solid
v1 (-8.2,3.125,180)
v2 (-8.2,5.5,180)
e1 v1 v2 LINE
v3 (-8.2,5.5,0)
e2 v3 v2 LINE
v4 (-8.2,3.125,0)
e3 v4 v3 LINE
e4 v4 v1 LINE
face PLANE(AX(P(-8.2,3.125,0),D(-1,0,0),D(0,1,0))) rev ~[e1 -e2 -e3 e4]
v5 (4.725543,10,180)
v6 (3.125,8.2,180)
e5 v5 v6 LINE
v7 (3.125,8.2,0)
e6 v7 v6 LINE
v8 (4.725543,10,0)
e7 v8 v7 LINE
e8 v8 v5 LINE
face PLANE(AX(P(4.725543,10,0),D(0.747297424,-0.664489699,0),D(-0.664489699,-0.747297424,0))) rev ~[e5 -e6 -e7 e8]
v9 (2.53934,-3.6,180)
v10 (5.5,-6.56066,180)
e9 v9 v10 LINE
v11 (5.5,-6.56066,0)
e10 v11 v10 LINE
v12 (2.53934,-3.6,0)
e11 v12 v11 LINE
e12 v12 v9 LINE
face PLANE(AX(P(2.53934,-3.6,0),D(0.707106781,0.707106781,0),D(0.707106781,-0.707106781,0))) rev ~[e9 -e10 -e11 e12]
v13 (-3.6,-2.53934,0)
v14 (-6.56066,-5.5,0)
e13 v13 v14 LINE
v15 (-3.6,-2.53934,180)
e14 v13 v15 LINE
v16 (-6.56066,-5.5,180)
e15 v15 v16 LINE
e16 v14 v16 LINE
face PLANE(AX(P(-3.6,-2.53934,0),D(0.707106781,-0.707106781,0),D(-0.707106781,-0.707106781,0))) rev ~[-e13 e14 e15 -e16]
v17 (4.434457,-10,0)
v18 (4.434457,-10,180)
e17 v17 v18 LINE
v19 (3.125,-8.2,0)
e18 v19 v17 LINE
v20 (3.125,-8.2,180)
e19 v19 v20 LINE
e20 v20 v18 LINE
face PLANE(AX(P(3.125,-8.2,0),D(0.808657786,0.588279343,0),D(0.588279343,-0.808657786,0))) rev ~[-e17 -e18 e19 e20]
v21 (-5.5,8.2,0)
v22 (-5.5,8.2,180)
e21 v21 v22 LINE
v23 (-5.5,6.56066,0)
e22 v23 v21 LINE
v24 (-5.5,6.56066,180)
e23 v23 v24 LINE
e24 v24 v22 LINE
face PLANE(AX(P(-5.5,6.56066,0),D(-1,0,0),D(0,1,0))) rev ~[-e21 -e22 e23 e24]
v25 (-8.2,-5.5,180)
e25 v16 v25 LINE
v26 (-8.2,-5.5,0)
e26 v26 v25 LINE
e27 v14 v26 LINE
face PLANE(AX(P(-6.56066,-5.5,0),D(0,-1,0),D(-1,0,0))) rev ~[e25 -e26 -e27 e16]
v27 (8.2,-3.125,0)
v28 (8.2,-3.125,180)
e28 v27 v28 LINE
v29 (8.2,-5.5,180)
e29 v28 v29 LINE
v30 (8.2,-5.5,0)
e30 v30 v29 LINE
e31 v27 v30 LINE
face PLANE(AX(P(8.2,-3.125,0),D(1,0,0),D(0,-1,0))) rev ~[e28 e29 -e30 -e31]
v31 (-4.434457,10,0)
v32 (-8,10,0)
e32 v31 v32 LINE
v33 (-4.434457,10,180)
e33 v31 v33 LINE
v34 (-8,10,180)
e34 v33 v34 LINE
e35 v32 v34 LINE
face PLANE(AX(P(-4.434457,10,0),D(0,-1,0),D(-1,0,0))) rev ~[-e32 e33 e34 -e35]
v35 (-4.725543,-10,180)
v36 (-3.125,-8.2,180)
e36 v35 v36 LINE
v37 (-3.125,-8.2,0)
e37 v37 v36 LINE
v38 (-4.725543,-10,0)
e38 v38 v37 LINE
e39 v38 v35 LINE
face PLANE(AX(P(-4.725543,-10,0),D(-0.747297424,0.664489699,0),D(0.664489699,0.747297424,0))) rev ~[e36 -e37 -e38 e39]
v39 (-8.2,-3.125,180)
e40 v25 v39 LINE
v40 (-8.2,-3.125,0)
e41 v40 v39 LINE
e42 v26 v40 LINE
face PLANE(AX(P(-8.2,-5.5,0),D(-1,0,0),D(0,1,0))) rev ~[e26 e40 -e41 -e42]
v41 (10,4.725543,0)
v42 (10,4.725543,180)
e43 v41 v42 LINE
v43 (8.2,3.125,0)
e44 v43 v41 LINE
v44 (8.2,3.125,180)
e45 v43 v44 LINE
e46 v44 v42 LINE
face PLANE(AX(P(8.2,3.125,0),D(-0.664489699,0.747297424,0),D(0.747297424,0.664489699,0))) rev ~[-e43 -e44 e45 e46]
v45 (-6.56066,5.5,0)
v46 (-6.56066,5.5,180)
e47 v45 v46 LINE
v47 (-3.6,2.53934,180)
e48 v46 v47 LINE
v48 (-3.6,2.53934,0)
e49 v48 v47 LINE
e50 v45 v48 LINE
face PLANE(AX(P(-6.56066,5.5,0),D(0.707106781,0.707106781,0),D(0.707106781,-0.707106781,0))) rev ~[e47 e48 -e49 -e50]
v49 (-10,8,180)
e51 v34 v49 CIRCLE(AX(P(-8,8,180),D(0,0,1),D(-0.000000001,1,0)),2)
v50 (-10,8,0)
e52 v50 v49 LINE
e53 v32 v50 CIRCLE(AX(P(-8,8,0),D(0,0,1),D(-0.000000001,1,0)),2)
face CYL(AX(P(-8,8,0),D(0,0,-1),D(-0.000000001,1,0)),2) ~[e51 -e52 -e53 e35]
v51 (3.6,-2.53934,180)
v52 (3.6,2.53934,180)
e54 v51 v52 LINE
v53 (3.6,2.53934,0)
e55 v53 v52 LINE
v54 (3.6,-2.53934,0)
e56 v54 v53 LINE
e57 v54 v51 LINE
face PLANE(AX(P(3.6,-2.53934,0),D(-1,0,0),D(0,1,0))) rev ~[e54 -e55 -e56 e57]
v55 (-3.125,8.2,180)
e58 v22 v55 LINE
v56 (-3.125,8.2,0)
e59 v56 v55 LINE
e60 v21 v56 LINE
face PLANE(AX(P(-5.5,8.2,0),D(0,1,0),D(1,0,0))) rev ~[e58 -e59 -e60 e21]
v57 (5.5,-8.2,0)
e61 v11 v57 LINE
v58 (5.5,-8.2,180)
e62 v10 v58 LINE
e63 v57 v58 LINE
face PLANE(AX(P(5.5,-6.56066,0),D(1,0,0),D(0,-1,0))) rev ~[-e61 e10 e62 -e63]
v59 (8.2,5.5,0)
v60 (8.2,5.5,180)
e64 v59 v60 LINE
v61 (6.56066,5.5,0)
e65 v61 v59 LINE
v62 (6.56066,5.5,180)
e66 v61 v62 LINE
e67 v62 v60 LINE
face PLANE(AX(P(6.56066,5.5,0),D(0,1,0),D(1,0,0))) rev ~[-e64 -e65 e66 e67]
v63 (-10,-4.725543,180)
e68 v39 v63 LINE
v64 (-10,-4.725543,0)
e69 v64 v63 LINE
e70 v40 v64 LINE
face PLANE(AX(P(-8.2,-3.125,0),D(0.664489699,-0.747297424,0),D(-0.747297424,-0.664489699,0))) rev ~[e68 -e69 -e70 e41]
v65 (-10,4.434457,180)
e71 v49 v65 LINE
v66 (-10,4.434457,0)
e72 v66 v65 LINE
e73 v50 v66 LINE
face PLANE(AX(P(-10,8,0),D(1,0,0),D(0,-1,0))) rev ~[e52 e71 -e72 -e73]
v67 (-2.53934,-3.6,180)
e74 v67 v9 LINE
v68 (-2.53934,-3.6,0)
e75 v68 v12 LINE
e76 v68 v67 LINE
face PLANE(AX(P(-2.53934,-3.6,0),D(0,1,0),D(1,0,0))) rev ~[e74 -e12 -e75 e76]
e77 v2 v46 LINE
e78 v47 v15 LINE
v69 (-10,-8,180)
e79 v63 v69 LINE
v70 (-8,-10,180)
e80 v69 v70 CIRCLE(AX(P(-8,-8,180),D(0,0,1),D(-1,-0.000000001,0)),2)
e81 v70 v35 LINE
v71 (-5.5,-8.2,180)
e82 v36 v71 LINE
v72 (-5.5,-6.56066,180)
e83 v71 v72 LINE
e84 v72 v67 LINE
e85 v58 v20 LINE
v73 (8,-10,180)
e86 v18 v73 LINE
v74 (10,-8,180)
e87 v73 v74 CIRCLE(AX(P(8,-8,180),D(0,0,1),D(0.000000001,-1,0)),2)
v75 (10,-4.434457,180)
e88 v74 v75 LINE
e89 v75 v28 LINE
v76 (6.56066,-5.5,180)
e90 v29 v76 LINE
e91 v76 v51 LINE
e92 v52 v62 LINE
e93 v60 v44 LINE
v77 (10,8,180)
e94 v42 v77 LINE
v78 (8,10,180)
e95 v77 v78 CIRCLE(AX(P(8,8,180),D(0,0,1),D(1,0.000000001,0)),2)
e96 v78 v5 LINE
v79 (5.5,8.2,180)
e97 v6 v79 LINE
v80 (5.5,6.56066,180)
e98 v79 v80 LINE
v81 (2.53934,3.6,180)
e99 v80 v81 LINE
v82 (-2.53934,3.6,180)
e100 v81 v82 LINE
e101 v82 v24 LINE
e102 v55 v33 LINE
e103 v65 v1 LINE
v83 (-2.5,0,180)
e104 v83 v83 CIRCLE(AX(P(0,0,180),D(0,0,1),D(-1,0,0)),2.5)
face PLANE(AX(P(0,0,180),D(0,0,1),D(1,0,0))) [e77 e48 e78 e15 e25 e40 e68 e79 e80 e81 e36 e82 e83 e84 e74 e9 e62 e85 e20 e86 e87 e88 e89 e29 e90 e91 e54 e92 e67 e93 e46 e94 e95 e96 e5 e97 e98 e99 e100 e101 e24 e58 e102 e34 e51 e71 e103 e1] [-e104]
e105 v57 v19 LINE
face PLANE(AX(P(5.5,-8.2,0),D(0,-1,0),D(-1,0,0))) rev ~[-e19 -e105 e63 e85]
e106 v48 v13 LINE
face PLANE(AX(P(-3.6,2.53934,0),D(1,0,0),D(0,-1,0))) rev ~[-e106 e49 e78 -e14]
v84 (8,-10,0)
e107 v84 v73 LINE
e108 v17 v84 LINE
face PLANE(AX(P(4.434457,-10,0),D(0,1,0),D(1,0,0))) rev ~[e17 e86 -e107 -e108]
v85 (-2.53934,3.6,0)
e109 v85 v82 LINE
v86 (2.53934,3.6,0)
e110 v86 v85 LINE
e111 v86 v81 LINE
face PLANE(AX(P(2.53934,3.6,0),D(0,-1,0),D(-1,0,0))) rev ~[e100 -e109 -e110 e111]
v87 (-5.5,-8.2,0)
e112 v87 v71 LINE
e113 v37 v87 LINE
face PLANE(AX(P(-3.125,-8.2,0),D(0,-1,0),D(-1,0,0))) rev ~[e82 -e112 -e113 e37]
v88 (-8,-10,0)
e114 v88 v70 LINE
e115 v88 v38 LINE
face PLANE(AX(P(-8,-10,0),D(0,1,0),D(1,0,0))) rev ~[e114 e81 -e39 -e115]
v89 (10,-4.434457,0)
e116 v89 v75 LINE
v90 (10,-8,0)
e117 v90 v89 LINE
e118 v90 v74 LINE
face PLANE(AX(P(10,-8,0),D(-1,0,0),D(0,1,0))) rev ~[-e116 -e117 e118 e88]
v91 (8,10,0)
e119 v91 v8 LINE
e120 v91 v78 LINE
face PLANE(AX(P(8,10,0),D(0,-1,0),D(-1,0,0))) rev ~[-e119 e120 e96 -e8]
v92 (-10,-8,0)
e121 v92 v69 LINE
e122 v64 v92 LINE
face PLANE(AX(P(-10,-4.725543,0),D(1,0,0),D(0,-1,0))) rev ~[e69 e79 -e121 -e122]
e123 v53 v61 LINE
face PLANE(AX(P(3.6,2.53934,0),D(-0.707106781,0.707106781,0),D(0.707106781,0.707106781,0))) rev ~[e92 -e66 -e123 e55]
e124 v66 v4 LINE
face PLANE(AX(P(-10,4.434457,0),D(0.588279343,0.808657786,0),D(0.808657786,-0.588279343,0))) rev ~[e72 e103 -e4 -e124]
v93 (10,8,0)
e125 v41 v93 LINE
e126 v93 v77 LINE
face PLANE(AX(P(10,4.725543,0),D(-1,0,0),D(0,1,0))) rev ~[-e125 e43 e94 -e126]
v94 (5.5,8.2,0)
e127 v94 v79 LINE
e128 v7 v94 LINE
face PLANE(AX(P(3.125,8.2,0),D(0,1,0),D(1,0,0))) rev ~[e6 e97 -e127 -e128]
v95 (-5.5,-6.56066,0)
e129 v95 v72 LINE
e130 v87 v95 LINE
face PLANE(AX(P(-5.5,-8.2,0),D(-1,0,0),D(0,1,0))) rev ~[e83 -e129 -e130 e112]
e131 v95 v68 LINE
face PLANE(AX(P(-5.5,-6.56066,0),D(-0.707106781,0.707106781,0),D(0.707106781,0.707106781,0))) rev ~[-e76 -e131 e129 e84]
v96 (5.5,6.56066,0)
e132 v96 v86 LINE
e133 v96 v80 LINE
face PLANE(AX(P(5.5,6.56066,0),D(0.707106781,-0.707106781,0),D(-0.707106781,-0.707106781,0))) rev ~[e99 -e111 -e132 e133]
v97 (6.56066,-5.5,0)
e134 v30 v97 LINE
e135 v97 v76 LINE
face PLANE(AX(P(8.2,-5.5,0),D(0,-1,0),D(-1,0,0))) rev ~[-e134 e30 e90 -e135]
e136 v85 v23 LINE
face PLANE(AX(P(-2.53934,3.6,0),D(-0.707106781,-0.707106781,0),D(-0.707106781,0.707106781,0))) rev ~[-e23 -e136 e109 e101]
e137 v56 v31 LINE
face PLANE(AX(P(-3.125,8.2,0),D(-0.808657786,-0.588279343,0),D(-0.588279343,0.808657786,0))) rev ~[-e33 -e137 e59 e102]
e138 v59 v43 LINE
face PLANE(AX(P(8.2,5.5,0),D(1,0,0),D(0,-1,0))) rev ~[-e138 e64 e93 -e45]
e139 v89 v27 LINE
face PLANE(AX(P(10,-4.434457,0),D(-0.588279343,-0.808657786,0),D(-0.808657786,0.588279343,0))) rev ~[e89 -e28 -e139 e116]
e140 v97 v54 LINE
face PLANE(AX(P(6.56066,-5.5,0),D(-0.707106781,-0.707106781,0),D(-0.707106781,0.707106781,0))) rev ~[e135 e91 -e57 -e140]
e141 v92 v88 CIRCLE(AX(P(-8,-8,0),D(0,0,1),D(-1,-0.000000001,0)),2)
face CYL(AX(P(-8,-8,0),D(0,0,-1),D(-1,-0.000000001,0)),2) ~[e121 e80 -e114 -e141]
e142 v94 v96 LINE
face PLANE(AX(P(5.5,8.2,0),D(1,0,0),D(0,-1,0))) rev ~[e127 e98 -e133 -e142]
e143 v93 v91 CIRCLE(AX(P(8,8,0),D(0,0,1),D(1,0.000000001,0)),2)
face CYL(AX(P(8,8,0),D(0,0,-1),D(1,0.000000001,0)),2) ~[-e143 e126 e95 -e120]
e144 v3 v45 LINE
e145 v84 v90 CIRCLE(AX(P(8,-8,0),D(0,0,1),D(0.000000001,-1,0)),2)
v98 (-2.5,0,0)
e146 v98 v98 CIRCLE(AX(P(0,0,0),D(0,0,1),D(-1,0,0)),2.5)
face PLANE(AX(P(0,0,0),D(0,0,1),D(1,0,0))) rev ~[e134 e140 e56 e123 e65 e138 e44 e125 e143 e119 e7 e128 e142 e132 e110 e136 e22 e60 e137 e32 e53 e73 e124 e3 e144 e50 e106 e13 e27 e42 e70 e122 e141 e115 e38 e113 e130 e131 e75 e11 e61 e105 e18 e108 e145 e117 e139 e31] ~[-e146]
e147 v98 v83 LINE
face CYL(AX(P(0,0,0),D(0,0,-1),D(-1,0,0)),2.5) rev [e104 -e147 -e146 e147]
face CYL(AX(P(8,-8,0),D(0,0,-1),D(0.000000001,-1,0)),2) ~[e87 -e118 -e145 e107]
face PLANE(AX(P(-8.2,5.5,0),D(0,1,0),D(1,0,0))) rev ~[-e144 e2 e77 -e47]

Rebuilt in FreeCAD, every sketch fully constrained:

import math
import FreeCAD as App
import Part
import Sketcher

V = App.Vector

doc = App.newDocument("Part")
body = doc.addObject("PartDesign::Body", "Body")

sketch1 = body.newObject("Sketcher::SketchObject", "Sketch")
sketch1.AttachmentSupport = (doc.getObject("XY_Plane"), [""])
sketch1.MapMode = "FlatFace"
sketch1.addGeometry([
    Part.LineSegment(V(-4.7, -10, 0), V(-3.1, -8.2, 0)),
    Part.LineSegment(V(-3.1, -8.2, 0), V(-5.5, -8.2, 0)),
    Part.LineSegment(V(-5.5, -8.2, 0), V(-5.5, -6.6, 0)),
    Part.LineSegment(V(-5.5, -6.6, 0), V(-2.5, -3.6, 0)),
    Part.LineSegment(V(-2.5, -3.6, 0), V(2.5, -3.6, 0)),
    Part.LineSegment(V(2.5, -3.6, 0), V(5.5, -6.6, 0)),
    Part.LineSegment(V(5.5, -6.6, 0), V(5.5, -8.2, 0)),
    Part.LineSegment(V(5.5, -8.2, 0), V(3.1, -8.2, 0)),
    Part.LineSegment(V(3.1, -8.2, 0), V(4.4, -10, 0)),
    Part.LineSegment(V(4.4, -10, 0), V(8, -10, 0)),
    Part.ArcOfCircle(Part.Circle(V(8, -8, 0), V(0, 0, 1), 2), math.radians(-90), math.radians(0)),
    Part.LineSegment(V(10, -8, 0), V(10, -4.4, 0)),
    Part.LineSegment(V(10, -4.4, 0), V(8.2, -3.1, 0)),
    Part.LineSegment(V(8.2, -3.1, 0), V(8.2, -5.5, 0)),
    Part.LineSegment(V(8.2, -5.5, 0), V(6.6, -5.5, 0)),
    Part.LineSegment(V(6.6, -5.5, 0), V(3.6, -2.5, 0)),
    Part.LineSegment(V(3.6, -2.5, 0), V(3.6, 2.5, 0)),
    Part.LineSegment(V(3.6, 2.5, 0), V(6.6, 5.5, 0)),
    Part.LineSegment(V(6.6, 5.5, 0), V(8.2, 5.5, 0)),
    Part.LineSegment(V(8.2, 5.5, 0), V(8.2, 3.1, 0)),
    Part.LineSegment(V(8.2, 3.1, 0), V(10, 4.7, 0)),
    Part.LineSegment(V(10, 4.7, 0), V(10, 8, 0)),
    Part.ArcOfCircle(Part.Circle(V(8, 8, 0), V(0, 0, 1), 2), math.radians(0), math.radians(90)),
    Part.LineSegment(V(8, 10, 0), V(4.7, 10, 0)),
    Part.LineSegment(V(4.7, 10, 0), V(3.1, 8.2, 0)),
    Part.LineSegment(V(3.1, 8.2, 0), V(5.5, 8.2, 0)),
    Part.LineSegment(V(5.5, 8.2, 0), V(5.5, 6.6, 0)),
    Part.LineSegment(V(5.5, 6.6, 0), V(2.5, 3.6, 0)),
    Part.LineSegment(V(2.5, 3.6, 0), V(-2.5, 3.6, 0)),
    Part.LineSegment(V(-2.5, 3.6, 0), V(-5.5, 6.6, 0)),
    Part.LineSegment(V(-5.5, 6.6, 0), V(-5.5, 8.2, 0)),
    Part.LineSegment(V(-5.5, 8.2, 0), V(-3.1, 8.2, 0)),
    Part.LineSegment(V(-3.1, 8.2, 0), V(-4.4, 10, 0)),
    Part.LineSegment(V(-4.4, 10, 0), V(-8, 10, 0)),
    Part.ArcOfCircle(Part.Circle(V(-8, 8, 0), V(0, 0, 1), 2), math.radians(90), math.radians(180)),
    Part.LineSegment(V(-10, 8, 0), V(-10, 4.4, 0)),
    Part.LineSegment(V(-10, 4.4, 0), V(-8.2, 3.1, 0)),
    Part.LineSegment(V(-8.2, 3.1, 0), V(-8.2, 5.5, 0)),
    Part.LineSegment(V(-8.2, 5.5, 0), V(-6.6, 5.5, 0)),
    Part.LineSegment(V(-6.6, 5.5, 0), V(-3.6, 2.5, 0)),
    Part.LineSegment(V(-3.6, 2.5, 0), V(-3.6, -2.5, 0)),
    Part.LineSegment(V(-3.6, -2.5, 0), V(-6.6, -5.5, 0)),
    Part.LineSegment(V(-6.6, -5.5, 0), V(-8.2, -5.5, 0)),
    Part.LineSegment(V(-8.2, -5.5, 0), V(-8.2, -3.1, 0)),
    Part.LineSegment(V(-8.2, -3.1, 0), V(-10, -4.7, 0)),
    Part.LineSegment(V(-10, -4.7, 0), V(-10, -8, 0)),
    Part.ArcOfCircle(Part.Circle(V(-8, -8, 0), V(0, 0, 1), 2), math.radians(-180), math.radians(-90)),
    Part.LineSegment(V(-8, -10, 0), V(-4.7, -10, 0)),
    Part.Circle(V(0, 0, 0), V(0, 0, 1), 2.5),
], False)
sketch1.addConstraint([
    Sketcher.Constraint("Coincident", 0, 2, 1, 1),
    Sketcher.Constraint("Coincident", 1, 2, 2, 1),
    Sketcher.Constraint("Coincident", 2, 2, 3, 1),
    Sketcher.Constraint("Coincident", 3, 2, 4, 1),
    Sketcher.Constraint("Coincident", 4, 2, 5, 1),
    Sketcher.Constraint("Coincident", 5, 2, 6, 1),
    Sketcher.Constraint("Coincident", 6, 2, 7, 1),
    Sketcher.Constraint("Coincident", 7, 2, 8, 1),
    Sketcher.Constraint("Coincident", 8, 2, 9, 1),
    Sketcher.Constraint("Tangent", 9, 2, 10, 1),
    Sketcher.Constraint("Tangent", 10, 2, 11, 1),
    Sketcher.Constraint("Coincident", 11, 2, 12, 1),
    Sketcher.Constraint("Coincident", 12, 2, 13, 1),
    Sketcher.Constraint("Coincident", 13, 2, 14, 1),
    Sketcher.Constraint("Coincident", 14, 2, 15, 1),
    Sketcher.Constraint("Coincident", 15, 2, 16, 1),
    Sketcher.Constraint("Coincident", 16, 2, 17, 1),
    Sketcher.Constraint("Coincident", 17, 2, 18, 1),
    Sketcher.Constraint("Coincident", 18, 2, 19, 1),
    Sketcher.Constraint("Coincident", 19, 2, 20, 1),
    Sketcher.Constraint("Coincident", 20, 2, 21, 1),
    Sketcher.Constraint("Tangent", 21, 2, 22, 1),
    Sketcher.Constraint("Tangent", 22, 2, 23, 1),
    Sketcher.Constraint("Coincident", 23, 2, 24, 1),
    Sketcher.Constraint("Coincident", 24, 2, 25, 1),
    Sketcher.Constraint("Coincident", 25, 2, 26, 1),
    Sketcher.Constraint("Coincident", 26, 2, 27, 1),
    Sketcher.Constraint("Coincident", 27, 2, 28, 1),
    Sketcher.Constraint("Coincident", 28, 2, 29, 1),
    Sketcher.Constraint("Coincident", 29, 2, 30, 1),
    Sketcher.Constraint("Coincident", 30, 2, 31, 1),
    Sketcher.Constraint("Coincident", 31, 2, 32, 1),
    Sketcher.Constraint("Coincident", 32, 2, 33, 1),
    Sketcher.Constraint("Tangent", 33, 2, 34, 1),
    Sketcher.Constraint("Tangent", 34, 2, 35, 1),
    Sketcher.Constraint("Coincident", 35, 2, 36, 1),
    Sketcher.Constraint("Coincident", 36, 2, 37, 1),
    Sketcher.Constraint("Coincident", 37, 2, 38, 1),
    Sketcher.Constraint("Coincident", 38, 2, 39, 1),
    Sketcher.Constraint("Coincident", 39, 2, 40, 1),
    Sketcher.Constraint("Coincident", 40, 2, 41, 1),
    Sketcher.Constraint("Coincident", 41, 2, 42, 1),
    Sketcher.Constraint("Coincident", 42, 2, 43, 1),
    Sketcher.Constraint("Coincident", 43, 2, 44, 1),
    Sketcher.Constraint("Coincident", 44, 2, 45, 1),
    Sketcher.Constraint("Tangent", 45, 2, 46, 1),
    Sketcher.Constraint("Tangent", 46, 2, 47, 1),
    Sketcher.Constraint("Coincident", 47, 2, 0, 1),
    Sketcher.Constraint("Horizontal", 1),
    Sketcher.Constraint("Vertical", 2),
    Sketcher.Constraint("Horizontal", 4),
    Sketcher.Constraint("Vertical", 6),
    Sketcher.Constraint("Horizontal", 7),
    Sketcher.Constraint("Horizontal", 9),
    Sketcher.Constraint("Vertical", 11),
    Sketcher.Constraint("Vertical", 13),
    Sketcher.Constraint("Horizontal", 14),
    Sketcher.Constraint("Vertical", 16),
    Sketcher.Constraint("Horizontal", 18),
    Sketcher.Constraint("Vertical", 19),
    Sketcher.Constraint("Vertical", 21),
    Sketcher.Constraint("Horizontal", 23),
    Sketcher.Constraint("Horizontal", 25),
    Sketcher.Constraint("Vertical", 26),
    Sketcher.Constraint("Horizontal", 28),
    Sketcher.Constraint("Vertical", 30),
    Sketcher.Constraint("Horizontal", 31),
    Sketcher.Constraint("Horizontal", 33),
    Sketcher.Constraint("Vertical", 35),
    Sketcher.Constraint("Vertical", 37),
    Sketcher.Constraint("Horizontal", 38),
    Sketcher.Constraint("Vertical", 40),
    Sketcher.Constraint("Horizontal", 42),
    Sketcher.Constraint("Vertical", 43),
    Sketcher.Constraint("Vertical", 45),
    Sketcher.Constraint("Horizontal", 47),
    Sketcher.Constraint("Coincident", 48, 3, -1, 1),
    Sketcher.Constraint("Equal", 10, 22),
    Sketcher.Constraint("Equal", 22, 34),
    Sketcher.Constraint("Equal", 34, 46),
    Sketcher.Constraint("Symmetric", 10, 3, 34, 3, -1, 1),
    Sketcher.Constraint("Symmetric", 22, 3, 46, 3, -1, 1),
    Sketcher.Constraint("Symmetric", 0, 2, 24, 2, -1, 1),
    Sketcher.Constraint("Symmetric", 2, 2, 26, 2, -1, 1),
    Sketcher.Constraint("Symmetric", 3, 2, 27, 2, -1, 1),
    Sketcher.Constraint("Symmetric", 5, 2, 29, 2, -1, 1),
    Sketcher.Constraint("Symmetric", 7, 2, 31, 2, -1, 1),
    Sketcher.Constraint("Symmetric", 12, 2, 36, 2, -1, 1),
    Sketcher.Constraint("Symmetric", 14, 2, 38, 2, -1, 1),
    Sketcher.Constraint("Symmetric", 15, 2, 39, 2, -1, 1),
    Sketcher.Constraint("Symmetric", 17, 2, 41, 2, -1, 1),
    Sketcher.Constraint("Symmetric", 19, 2, 43, 2, -1, 1),
    Sketcher.Constraint("Symmetric", 22, 3, 34, 3, -2),
    Sketcher.Constraint("Symmetric", 2, 2, 5, 2, -2),
    Sketcher.Constraint("Symmetric", 0, 2, 7, 2, -2),
    Sketcher.Constraint("Symmetric", 19, 2, 36, 2, -2),
    Sketcher.Constraint("Symmetric", 17, 2, 38, 2, -2),
    Sketcher.Constraint("Perpendicular", 3, 5),
    Sketcher.Constraint("Parallel", 5, 15),
    Sketcher.Constraint("Perpendicular", 15, 17),
    Sketcher.Constraint("Parallel", 0, 24),
    Sketcher.Constraint("Perpendicular", 27, 29),
    Sketcher.Constraint("Parallel", 8, 32),
    Sketcher.Constraint("Parallel", 12, 36),
    Sketcher.Constraint("Perpendicular", 39, 41),
    Sketcher.Constraint("Parallel", 20, 44),
    Sketcher.Constraint("Horizontal", 16, 2, 39, 2),
    Sketcher.Constraint("Equal", 42, 2),
    Sketcher.Constraint("Equal", 33, 11),
    Sketcher.Constraint("Equal", 31, 13),
    Sketcher.Constraint("Equal", 28, 16),
    Sketcher.Constraint("Equal", 47, 21),
    Sketcher.Constraint("Equal", 8, 12),
    Sketcher.Constraint("Equal", 5, 15),
    Sketcher.Constraint("Equal", 0, 20),
    Sketcher.Constraint("Diameter", 48, 5.0),
    Sketcher.Constraint("Radius", 10, 2.0),
    Sketcher.Constraint("DistanceX", -1, 1, 10, 3, 8.0),
    Sketcher.Constraint("DistanceY", 0, 2, -1, 1, 8.2),
    Sketcher.Constraint("DistanceX", 1, 2, -1, 1, 5.5),
    Sketcher.Constraint("DistanceY", 3, 2, -1, 1, 3.6),
    Sketcher.Constraint("DistanceX", 1, 2, 1, 1, 2.375),
    Sketcher.Constraint("DistanceX", 4, 1, 4, 2, 5.07868),
    Sketcher.Constraint("Distance", 0, 2.40868),
    Sketcher.Constraint("Distance", 8, 2.225911),
])
pad1 = body.newObject("PartDesign::Pad", "Pad")
pad1.Profile = sketch1
pad1.Length = 180

doc.recompute()
